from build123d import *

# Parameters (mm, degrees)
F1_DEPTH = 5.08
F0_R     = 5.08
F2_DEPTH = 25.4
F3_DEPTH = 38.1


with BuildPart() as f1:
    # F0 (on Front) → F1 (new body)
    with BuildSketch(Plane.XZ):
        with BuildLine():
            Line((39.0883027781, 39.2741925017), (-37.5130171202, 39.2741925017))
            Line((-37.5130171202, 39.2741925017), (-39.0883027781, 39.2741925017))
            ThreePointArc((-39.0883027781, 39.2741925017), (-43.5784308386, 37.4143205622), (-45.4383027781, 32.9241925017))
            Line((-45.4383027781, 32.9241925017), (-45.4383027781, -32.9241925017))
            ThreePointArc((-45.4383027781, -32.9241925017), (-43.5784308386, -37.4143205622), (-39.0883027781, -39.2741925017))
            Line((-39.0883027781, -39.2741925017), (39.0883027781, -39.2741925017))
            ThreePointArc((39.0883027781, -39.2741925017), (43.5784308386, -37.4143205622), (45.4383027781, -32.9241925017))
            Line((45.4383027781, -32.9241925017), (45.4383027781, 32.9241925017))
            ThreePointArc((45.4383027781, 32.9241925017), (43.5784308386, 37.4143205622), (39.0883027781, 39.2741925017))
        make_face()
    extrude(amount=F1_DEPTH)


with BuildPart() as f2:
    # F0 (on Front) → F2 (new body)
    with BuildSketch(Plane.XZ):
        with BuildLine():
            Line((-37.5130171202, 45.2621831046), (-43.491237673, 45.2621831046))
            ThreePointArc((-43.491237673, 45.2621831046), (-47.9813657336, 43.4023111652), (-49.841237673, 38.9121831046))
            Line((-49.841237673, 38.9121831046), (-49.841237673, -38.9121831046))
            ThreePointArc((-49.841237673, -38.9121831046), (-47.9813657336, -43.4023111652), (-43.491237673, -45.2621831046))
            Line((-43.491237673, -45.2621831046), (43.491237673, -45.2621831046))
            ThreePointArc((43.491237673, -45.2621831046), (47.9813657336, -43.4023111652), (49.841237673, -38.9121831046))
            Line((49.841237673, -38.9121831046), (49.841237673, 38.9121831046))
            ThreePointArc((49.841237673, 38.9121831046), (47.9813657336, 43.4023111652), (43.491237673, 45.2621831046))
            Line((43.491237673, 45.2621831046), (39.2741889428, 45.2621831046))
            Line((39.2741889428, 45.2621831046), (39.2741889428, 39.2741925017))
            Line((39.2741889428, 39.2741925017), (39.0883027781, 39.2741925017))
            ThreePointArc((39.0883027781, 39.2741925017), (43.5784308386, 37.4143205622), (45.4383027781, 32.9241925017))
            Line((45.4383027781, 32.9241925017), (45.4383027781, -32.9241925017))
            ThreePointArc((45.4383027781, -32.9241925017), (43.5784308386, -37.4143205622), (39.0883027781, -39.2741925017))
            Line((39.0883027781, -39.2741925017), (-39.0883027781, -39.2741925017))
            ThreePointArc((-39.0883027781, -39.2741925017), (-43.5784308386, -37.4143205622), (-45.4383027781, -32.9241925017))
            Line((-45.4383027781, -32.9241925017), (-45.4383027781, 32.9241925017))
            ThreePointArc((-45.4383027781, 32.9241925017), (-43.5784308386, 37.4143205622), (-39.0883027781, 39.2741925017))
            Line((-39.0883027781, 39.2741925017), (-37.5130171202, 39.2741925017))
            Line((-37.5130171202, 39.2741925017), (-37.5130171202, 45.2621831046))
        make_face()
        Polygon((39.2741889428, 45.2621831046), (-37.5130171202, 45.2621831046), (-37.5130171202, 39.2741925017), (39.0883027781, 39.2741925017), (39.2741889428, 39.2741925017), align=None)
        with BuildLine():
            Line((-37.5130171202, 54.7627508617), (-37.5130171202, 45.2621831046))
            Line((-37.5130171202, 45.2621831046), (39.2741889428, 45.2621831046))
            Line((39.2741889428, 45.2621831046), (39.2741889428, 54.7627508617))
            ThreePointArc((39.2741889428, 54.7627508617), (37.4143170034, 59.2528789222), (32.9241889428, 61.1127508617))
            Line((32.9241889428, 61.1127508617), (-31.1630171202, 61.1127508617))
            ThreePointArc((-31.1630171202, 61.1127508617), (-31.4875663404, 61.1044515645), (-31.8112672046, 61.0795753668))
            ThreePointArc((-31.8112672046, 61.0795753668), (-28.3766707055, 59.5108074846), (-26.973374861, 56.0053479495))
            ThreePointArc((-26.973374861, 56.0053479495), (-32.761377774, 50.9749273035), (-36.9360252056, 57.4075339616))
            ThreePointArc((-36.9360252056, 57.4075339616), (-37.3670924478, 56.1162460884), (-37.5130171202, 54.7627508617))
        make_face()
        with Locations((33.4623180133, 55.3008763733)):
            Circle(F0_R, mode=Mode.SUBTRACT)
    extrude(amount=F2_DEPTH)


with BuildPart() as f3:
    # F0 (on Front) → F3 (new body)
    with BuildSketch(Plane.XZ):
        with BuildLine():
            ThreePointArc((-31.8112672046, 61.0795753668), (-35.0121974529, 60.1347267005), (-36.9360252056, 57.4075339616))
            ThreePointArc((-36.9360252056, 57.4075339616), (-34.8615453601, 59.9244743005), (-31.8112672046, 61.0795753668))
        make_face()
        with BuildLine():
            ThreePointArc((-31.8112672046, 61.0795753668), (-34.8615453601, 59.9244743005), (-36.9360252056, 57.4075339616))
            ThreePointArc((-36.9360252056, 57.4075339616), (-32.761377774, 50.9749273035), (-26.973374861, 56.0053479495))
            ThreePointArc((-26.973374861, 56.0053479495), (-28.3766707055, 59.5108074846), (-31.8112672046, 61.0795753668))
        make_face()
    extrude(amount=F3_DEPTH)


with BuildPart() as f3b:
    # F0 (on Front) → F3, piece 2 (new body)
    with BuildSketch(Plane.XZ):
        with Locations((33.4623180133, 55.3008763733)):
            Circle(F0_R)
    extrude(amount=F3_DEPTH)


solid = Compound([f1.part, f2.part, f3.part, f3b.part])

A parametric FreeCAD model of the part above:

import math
import FreeCAD as App
import Part
import Sketcher
Q = App.Units.Quantity

doc = App.newDocument("Part")
body = doc.addObject("PartDesign::Body", "Body")

sketch1 = body.newObject("Sketcher::SketchObject", "Sketch")
sketch1.AttachmentSupport = (doc.getObject("XZ_Plane"), [""])
sketch1.MapMode = "FlatFace"
sketch1.addGeometry([
    Part.LineSegment(App.Vector(39.088303, 39.274193, 0), App.Vector(-39.088303, 39.274193, 0)),
    Part.ArcOfCircle(Part.Circle(App.Vector(-39.088303, 32.924193, 0), App.Vector(0, 0, 1), 6.35), math.radians(90), math.radians(180)),
    Part.LineSegment(App.Vector(-45.438303, 32.924193, 0), App.Vector(-45.438303, -32.924193, 0)),
    Part.ArcOfCircle(Part.Circle(App.Vector(-39.088303, -32.924193, 0), App.Vector(0, 0, 1), 6.35), math.radians(180), math.radians(270)),
    Part.LineSegment(App.Vector(-39.088303, -39.274193, 0), App.Vector(39.088303, -39.274193, 0)),
    Part.ArcOfCircle(Part.Circle(App.Vector(39.088303, -32.924193, 0), App.Vector(0, 0, 1), 6.35), math.radians(-90), math.radians(0)),
    Part.LineSegment(App.Vector(45.438303, -32.924193, 0), App.Vector(45.438303, 32.924193, 0)),
    Part.ArcOfCircle(Part.Circle(App.Vector(39.088303, 32.924193, 0), App.Vector(0, 0, 1), 6.35), math.radians(0), math.radians(90)),
], False)
sketch1.addConstraint([
    Sketcher.Constraint("Tangent", 0, 2, 1, 1),
    Sketcher.Constraint("Tangent", 1, 2, 2, 1),
    Sketcher.Constraint("Tangent", 2, 2, 3, 1),
    Sketcher.Constraint("Tangent", 3, 2, 4, 1),
    Sketcher.Constraint("Tangent", 4, 2, 5, 1),
    Sketcher.Constraint("Tangent", 5, 2, 6, 1),
    Sketcher.Constraint("Tangent", 6, 2, 7, 1),
    Sketcher.Constraint("Tangent", 7, 2, 0, 1),
    Sketcher.Constraint("Horizontal", 0),
    Sketcher.Constraint("Vertical", 2),
    Sketcher.Constraint("Horizontal", 4),
    Sketcher.Constraint("Vertical", 6),
    Sketcher.Constraint("Equal", 1, 3),
    Sketcher.Constraint("Equal", 3, 5),
    Sketcher.Constraint("Equal", 5, 7),
    Sketcher.Constraint("Symmetric", 1, 3, 5, 3, -1, 1),
    Sketcher.Constraint("Radius", 1, Q("0.25 in")),
    Sketcher.Constraint("DistanceX", 0, 2, 0, 1, 78.176606),
    Sketcher.Constraint("DistanceY", 2, 2, 2, 1, 65.848385),
])
pad1 = body.newObject("PartDesign::Pad", "Pad")
pad1.Profile = sketch1
pad1.Length = Q("0.2 in")
body2 = doc.addObject("PartDesign::Body", "Body001")

sketch2 = body2.newObject("Sketcher::SketchObject", "Sketch001")
sketch2.AttachmentSupport = (doc.getObject("XZ_Plane001"), [""])
sketch2.MapMode = "FlatFace"
sketch2.addGeometry([
    Part.ArcOfCircle(Part.Circle(App.Vector(-43.491238, 38.912183, 0), App.Vector(0, 0, 1), 6.35), math.radians(90), math.radians(180)),
    Part.LineSegment(App.Vector(-49.841238, 38.912183, 0), App.Vector(-49.841238, -38.912183, 0)),
    Part.ArcOfCircle(Part.Circle(App.Vector(-43.491238, -38.912183, 0), App.Vector(0, 0, 1), 6.35), math.radians(180), math.radians(270)),
    Part.LineSegment(App.Vector(-43.491238, -45.262183, 0), App.Vector(43.491238, -45.262183, 0)),
    Part.ArcOfCircle(Part.Circle(App.Vector(43.491238, -38.912183, 0), App.Vector(0, 0, 1), 6.35), math.radians(-90), math.radians(0)),
    Part.LineSegment(App.Vector(49.841238, -38.912183, 0), App.Vector(49.841238, 38.912183, 0)),
    Part.ArcOfCircle(Part.Circle(App.Vector(43.491238, 38.912183, 0), App.Vector(0, 0, 1), 6.35), math.radians(0), math.radians(90)),
    Part.LineSegment(App.Vector(43.491238, 45.262183, 0), App.Vector(39.274189, 45.262183, 0)),
    Part.LineSegment(App.Vector(39.274189, 45.262183, 0), App.Vector(39.274189, 54.762751, 0)),
    Part.ArcOfCircle(Part.Circle(App.Vector(32.924189, 54.762751, 0), App.Vector(0, 0, 1), 6.35), math.radians(0), math.radians(90)),
    Part.LineSegment(App.Vector(32.924189, 61.112751, 0), App.Vector(-31.163017, 61.112751, 0)),
    Part.ArcOfCircle(Part.Circle(App.Vector(-31.163017, 54.762751, 0), App.Vector(0, 0, 1), 6.35), math.radians(90), math.radians(95.85934)),
    Part.ArcOfCircle(Part.Circle(App.Vector(-32.053375, 56.005348, 0), App.Vector(0, 0, 1), 5.08), math.radians(0), math.radians(87.268306)),
    Part.ArcOfCircle(Part.Circle(App.Vector(-32.053375, 56.005348, 0), App.Vector(0, 0, 1), 5.08), math.radians(163.977139), math.radians(360)),
    Part.ArcOfCircle(Part.Circle(App.Vector(-31.163017, 54.762751, 0), App.Vector(0, 0, 1), 6.35), math.radians(155.386105), math.radians(180)),
    Part.LineSegment(App.Vector(-37.513017, 54.762751, 0), App.Vector(-37.513017, 45.262183, 0)),
    Part.LineSegment(App.Vector(-37.513017, 45.262183, 0), App.Vector(-43.491238, 45.262183, 0)),
    Part.ArcOfCircle(Part.Circle(App.Vector(39.088303, 32.924193, 0), App.Vector(0, 0, 1), 6.35), math.radians(0), math.radians(90)),
    Part.LineSegment(App.Vector(45.438303, 32.924193, 0), App.Vector(45.438303, -32.924193, 0)),
    Part.ArcOfCircle(Part.Circle(App.Vector(39.088303, -32.924193, 0), App.Vector(0, 0, 1), 6.35), math.radians(-90), math.radians(0)),
    Part.LineSegment(App.Vector(39.088303, -39.274193, 0), App.Vector(-39.088303, -39.274193, 0)),
    Part.ArcOfCircle(Part.Circle(App.Vector(-39.088303, -32.924193, 0), App.Vector(0, 0, 1), 6.35), math.radians(180), math.radians(270)),
    Part.LineSegment(App.Vector(-45.438303, -32.924193, 0), App.Vector(-45.438303, 32.924193, 0)),
    Part.ArcOfCircle(Part.Circle(App.Vector(-39.088303, 32.924193, 0), App.Vector(0, 0, 1), 6.35), math.radians(90), math.radians(180)),
    Part.LineSegment(App.Vector(-39.088303, 39.274193, 0), App.Vector(39.088303, 39.274193, 0)),
    Part.Circle(App.Vector(33.462318, 55.300876, 0), App.Vector(0, 0, 1), 5.08),
], False)
sketch2.addConstraint([
    Sketcher.Constraint("Tangent", 0, 2, 1, 1),
    Sketcher.Constraint("Tangent", 1, 2, 2, 1),
    Sketcher.Constraint("Tangent", 2, 2, 3, 1),
    Sketcher.Constraint("Tangent", 3, 2, 4, 1),
    Sketcher.Constraint("Tangent", 4, 2, 5, 1),
    Sketcher.Constraint("Tangent", 5, 2, 6, 1),
    Sketcher.Constraint("Tangent", 6, 2, 7, 1),
    Sketcher.Constraint("Coincident", 7, 2, 8, 1),
    Sketcher.Constraint("Tangent", 8, 2, 9, 1),
    Sketcher.Constraint("Tangent", 9, 2, 10, 1),
    Sketcher.Constraint("Tangent", 10, 2, 11, 1),
    Sketcher.Constraint("Coincident", 11, 2, 12, 2),
    Sketcher.Constraint("Tangent", 12, 1, 13, 2),
    Sketcher.Constraint("Coincident", 13, 1, 14, 1),
    Sketcher.Constraint("Tangent", 14, 2, 15, 1),
    Sketcher.Constraint("Coincident", 15, 2, 16, 1),
    Sketcher.Constraint("Tangent", 16, 2, 0, 1),
    Sketcher.Constraint("Tangent", 17, 1, 18, 1),
    Sketcher.Constraint("Tangent", 18, 2, 19, 2),
    Sketcher.Constraint("Tangent", 19, 1, 20, 1),
    Sketcher.Constraint("Tangent", 20, 2, 21, 2),
    Sketcher.Constraint("Tangent", 21, 1, 22, 1),
    Sketcher.Constraint("Tangent", 22, 2, 23, 2),
    Sketcher.Constraint("Tangent", 23, 1, 24, 1),
    Sketcher.Constraint("Tangent", 24, 2, 17, 2),
    Sketcher.Constraint("Vertical", 1),
    Sketcher.Constraint("Horizontal", 3),
    Sketcher.Constraint("Vertical", 5),
    Sketcher.Constraint("Horizontal", 7),
    Sketcher.Constraint("Vertical", 8),
    Sketcher.Constraint("Horizontal", 10),
    Sketcher.Constraint("Vertical", 15),
    Sketcher.Constraint("Horizontal", 16),
    Sketcher.Constraint("Vertical", 18),
    Sketcher.Constraint("Horizontal", 20),
    Sketcher.Constraint("Vertical", 22),
    Sketcher.Constraint("Horizontal", 24),
    Sketcher.Constraint("Coincident", 14, 3, 11, 3),
    Sketcher.Constraint("Equal", 0, 2),
    Sketcher.Constraint("Equal", 2, 4),
    Sketcher.Constraint("Equal", 4, 6),
    Sketcher.Constraint("Equal", 6, 9),
    Sketcher.Constraint("Equal", 9, 11),
    Sketcher.Constraint("Equal", 12, 13),
    Sketcher.Constraint("Equal", 11, 14),
    Sketcher.Constraint("Equal", 14, 17),
    Sketcher.Constraint("Equal", 17, 19),
    Sketcher.Constraint("Equal", 19, 21),
    Sketcher.Constraint("Equal", 21, 23),
    Sketcher.Constraint("Equal", 13, 25),
    Sketcher.Constraint("Symmetric", 0, 3, 4, 3, -1, 1),
    Sketcher.Constraint("Symmetric", 17, 3, 21, 3, -1, 1),
    Sketcher.Constraint("Horizontal", 0, 3, 6, 3),
    Sketcher.Constraint("Horizontal", 13, 3, 12, 1),
    Sketcher.Constraint("Diameter", 25, Q("0.4 in")),
    Sketcher.Constraint("Radius", 0, Q("0.25 in")),
    Sketcher.Constraint("DistanceY", -1, 1, 25, 3, Q("2.1771999 in")),
    Sketcher.Constraint("DistanceX", 14, 3, 17, 3, Q("2.7658 in")),
    Sketcher.Constraint("DistanceX", 7, 2, 7, 1, 4.217049),
    Sketcher.Constraint("DistanceX", 16, 2, 16, 1, 5.978221),
    Sketcher.Constraint("DistanceX", 3, 1, 3, 2, 86.982475),
    Sketcher.Constraint("DistanceY", 1, 2, 1, 1, 77.824366),
    Sketcher.Constraint("DistanceY", 8, 1, 8, 2, 9.500568),
    Sketcher.Constraint("DistanceY", 18, 2, 18, 1, 65.848385),
    Sketcher.Constraint("DistanceX", -1, 1, 25, 3, 33.462318),
    Sketcher.Constraint("DistanceY", 2, 3, 12, 3, 94.917531),
    Sketcher.Constraint("DistanceX", 11, 2, 10, 2, 0.64825),
])
pad2 = body2.newObject("PartDesign::Pad", "Pad001")
pad2.Profile = sketch2
pad2.Length = Q("1 in")
body3 = doc.addObject("PartDesign::Body", "Body002")

sketch3 = body3.newObject("Sketcher::SketchObject", "Sketch002")
sketch3.AttachmentSupport = (doc.getObject("XZ_Plane002"), [""])
sketch3.MapMode = "FlatFace"
sketch3.addGeometry([
    Part.ArcOfCircle(Part.Circle(App.Vector(-32.053375, 56.005348, 0), App.Vector(0, 0, 1), 5.08), math.radians(87.268306), math.radians(163.977139)),
    Part.ArcOfCircle(Part.Circle(App.Vector(-32.053375, 56.005348, 0), App.Vector(0, 0, 1), 5.08), math.radians(163.977139), math.radians(360)),
    Part.ArcOfCircle(Part.Circle(App.Vector(-32.053375, 56.005348, 0), App.Vector(0, 0, 1), 5.08), math.radians(0), math.radians(87.268306)),
], False)
sketch3.addConstraint([
    Sketcher.Constraint("Tangent", 0, 2, 1, 1),
    Sketcher.Constraint("Tangent", 1, 2, 2, 1),
    Sketcher.Constraint("Tangent", 2, 2, 0, 1),
    Sketcher.Constraint("Horizontal", 2, 3, 1, 2),
    Sketcher.Constraint("Radius", 0, Q("0.2 in")),
    Sketcher.Constraint("DistanceX", 0, 2, 0, 3, 4.88265),
    Sketcher.Constraint("DistanceX", 0, 2, 2, 2, 5.124758),
    Sketcher.Constraint("DistanceX", 0, 3, -1, 1, 32.053375),
    Sketcher.Constraint("DistanceY", -1, 1, 0, 3, 56.005348),
])
pad3 = body3.newObject("PartDesign::Pad", "Pad002")
pad3.Profile = sketch3
pad3.Length = Q("1.5 in")
body4 = doc.addObject("PartDesign::Body", "Body003")

sketch4 = body4.newObject("Sketcher::SketchObject", "Sketch003")
sketch4.AttachmentSupport = (doc.getObject("XZ_Plane003"), [""])
sketch4.MapMode = "FlatFace"
sketch4.addGeometry(Part.Circle(App.Vector(33.462318, 55.300876, 0), App.Vector(0, 0, 1), 5.08), False)
sketch4.addConstraint([
    Sketcher.Constraint("Diameter", 0, Q("0.4 in")),
    Sketcher.Constraint("DistanceY", -1, 1, 0, 3, Q("2.1771999 in")),
    Sketcher.Constraint("DistanceX", -1, 1, 0, 3, 33.462318),
])
pad4 = body4.newObject("PartDesign::Pad", "Pad003")
pad4.Profile = sketch4
pad4.Length = Q("1.5 in")

doc.recompute()
